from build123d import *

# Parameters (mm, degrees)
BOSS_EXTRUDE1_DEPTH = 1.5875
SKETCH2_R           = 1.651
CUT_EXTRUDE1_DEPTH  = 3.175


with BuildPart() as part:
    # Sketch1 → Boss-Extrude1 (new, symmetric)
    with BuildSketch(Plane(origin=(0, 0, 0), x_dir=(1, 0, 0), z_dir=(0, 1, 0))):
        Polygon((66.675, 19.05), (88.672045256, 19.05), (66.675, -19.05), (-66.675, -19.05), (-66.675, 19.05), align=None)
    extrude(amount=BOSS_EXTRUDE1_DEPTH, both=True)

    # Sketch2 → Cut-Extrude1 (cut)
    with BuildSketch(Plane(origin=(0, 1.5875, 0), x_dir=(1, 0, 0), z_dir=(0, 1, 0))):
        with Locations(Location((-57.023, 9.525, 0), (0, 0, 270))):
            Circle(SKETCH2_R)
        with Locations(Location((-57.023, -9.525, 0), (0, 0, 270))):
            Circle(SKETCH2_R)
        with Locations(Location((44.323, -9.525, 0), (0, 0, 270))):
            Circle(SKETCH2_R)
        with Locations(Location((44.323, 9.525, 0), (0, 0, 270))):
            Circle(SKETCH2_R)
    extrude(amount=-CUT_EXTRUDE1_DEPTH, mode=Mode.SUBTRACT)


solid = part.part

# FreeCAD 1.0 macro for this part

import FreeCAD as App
import Part
import Sketcher
Q = App.Units.Quantity

doc = App.newDocument("Part")
body = doc.addObject("PartDesign::Body", "Body")

# Sketch on XZ plane
sketch1 = body.newObject("Sketcher::SketchObject", "Sketch")
sketch1.AttachmentSupport = (doc.getObject("XZ_Plane"), [""])
sketch1.MapMode = "FlatFace"
sketch1.addGeometry(Part.LineSegment(App.Vector(88.672045, -19.05, 0), App.Vector(-66.675, -19.05, 0)), False)
sketch1.addGeometry(Part.LineSegment(App.Vector(-66.675, -19.05, 0), App.Vector(-66.675, 19.05, 0)), False)
sketch1.addGeometry(Part.LineSegment(App.Vector(-66.675, 19.05, 0), App.Vector(66.675, 19.05, 0)), False)
sketch1.addGeometry(Part.LineSegment(App.Vector(66.675, 19.05, 0), App.Vector(88.672045, -19.05, 0)), False)
sketch1.addConstraint(Sketcher.Constraint("Coincident", 0, 2, 1, 1))
sketch1.addConstraint(Sketcher.Constraint("Coincident", 1, 2, 2, 1))
sketch1.addConstraint(Sketcher.Constraint("Coincident", 2, 2, 3, 1))
sketch1.addConstraint(Sketcher.Constraint("Coincident", 3, 2, 0, 1))
sketch1.addConstraint(Sketcher.Constraint("Horizontal", 0))
sketch1.addConstraint(Sketcher.Constraint("Vertical", 1))
sketch1.addConstraint(Sketcher.Constraint("Horizontal", 2))
sketch1.addConstraint(Sketcher.Constraint("Symmetric", 0, 2, 2, 2, -1, 1))
sketch1.addConstraint(Sketcher.Constraint("DistanceY", 1, 1, 1, 2, Q("1.5 in")))
sketch1.addConstraint(Sketcher.Constraint("Angle", 3, Q("-60 deg")))
sketch1.addConstraint(Sketcher.Constraint("DistanceX", 2, 1, 2, 2, Q("5.25 in")))
pad1 = body.newObject("PartDesign::Pad", "Pad")
pad1.Profile = sketch1
pad1.Length = Q("0.125 in")
pad1.Midplane = True

# Sketch on XZ plane
sketch2 = body.newObject("Sketcher::SketchObject", "Sketch001")
sketch2.AttachmentSupport = (doc.getObject("XZ_Plane"), [""])
sketch2.MapMode = "FlatFace"
sketch2.AttachmentOffset = App.Placement(App.Vector(0, 0, -0.0625 * 25.4), App.Rotation())
sketch2.addGeometry(Part.Circle(App.Vector(-57.023, -9.525, 0), App.Vector(0, 0, 1), 1.651), False)
sketch2.addGeometry(Part.Circle(App.Vector(-57.023, 9.525, 0), App.Vector(0, 0, 1), 1.651), False)
sketch2.addGeometry(Part.Circle(App.Vector(44.323, 9.525, 0), App.Vector(0, 0, 1), 1.651), False)
sketch2.addGeometry(Part.Circle(App.Vector(44.323, -9.525, 0), App.Vector(0, 0, 1), 1.651), False)
sketch2.addConstraint(Sketcher.Constraint("Equal", 0, 1))
sketch2.addConstraint(Sketcher.Constraint("Equal", 1, 2))
sketch2.addConstraint(Sketcher.Constraint("Equal", 2, 3))
sketch2.addConstraint(Sketcher.Constraint("Symmetric", 0, 3, 1, 3, -1))
sketch2.addConstraint(Sketcher.Constraint("Symmetric", 2, 3, 3, 3, -1))
sketch2.addConstraint(Sketcher.Constraint("Horizontal", 1, 3, 2, 3))
sketch2.addConstraint(Sketcher.Constraint("Diameter", 0, Q("0.13 in")))
sketch2.addConstraint(Sketcher.Constraint("DistanceY", 0, 3, 1, 3, Q("0.75 in")))
sketch2.addConstraint(Sketcher.Constraint("DistanceX", 1, 3, 2, 3, Q("3.99 in")))
sketch2.addConstraint(Sketcher.Constraint("DistanceX", 0, 3, -1, 1, Q("2.245 in")))
pocket1 = body.newObject("PartDesign::Pocket", "Pocket")
pocket1.Profile = sketch2
pocket1.Length = Q("0.125 in")
pocket1.Reversed = True

doc.recompute()
